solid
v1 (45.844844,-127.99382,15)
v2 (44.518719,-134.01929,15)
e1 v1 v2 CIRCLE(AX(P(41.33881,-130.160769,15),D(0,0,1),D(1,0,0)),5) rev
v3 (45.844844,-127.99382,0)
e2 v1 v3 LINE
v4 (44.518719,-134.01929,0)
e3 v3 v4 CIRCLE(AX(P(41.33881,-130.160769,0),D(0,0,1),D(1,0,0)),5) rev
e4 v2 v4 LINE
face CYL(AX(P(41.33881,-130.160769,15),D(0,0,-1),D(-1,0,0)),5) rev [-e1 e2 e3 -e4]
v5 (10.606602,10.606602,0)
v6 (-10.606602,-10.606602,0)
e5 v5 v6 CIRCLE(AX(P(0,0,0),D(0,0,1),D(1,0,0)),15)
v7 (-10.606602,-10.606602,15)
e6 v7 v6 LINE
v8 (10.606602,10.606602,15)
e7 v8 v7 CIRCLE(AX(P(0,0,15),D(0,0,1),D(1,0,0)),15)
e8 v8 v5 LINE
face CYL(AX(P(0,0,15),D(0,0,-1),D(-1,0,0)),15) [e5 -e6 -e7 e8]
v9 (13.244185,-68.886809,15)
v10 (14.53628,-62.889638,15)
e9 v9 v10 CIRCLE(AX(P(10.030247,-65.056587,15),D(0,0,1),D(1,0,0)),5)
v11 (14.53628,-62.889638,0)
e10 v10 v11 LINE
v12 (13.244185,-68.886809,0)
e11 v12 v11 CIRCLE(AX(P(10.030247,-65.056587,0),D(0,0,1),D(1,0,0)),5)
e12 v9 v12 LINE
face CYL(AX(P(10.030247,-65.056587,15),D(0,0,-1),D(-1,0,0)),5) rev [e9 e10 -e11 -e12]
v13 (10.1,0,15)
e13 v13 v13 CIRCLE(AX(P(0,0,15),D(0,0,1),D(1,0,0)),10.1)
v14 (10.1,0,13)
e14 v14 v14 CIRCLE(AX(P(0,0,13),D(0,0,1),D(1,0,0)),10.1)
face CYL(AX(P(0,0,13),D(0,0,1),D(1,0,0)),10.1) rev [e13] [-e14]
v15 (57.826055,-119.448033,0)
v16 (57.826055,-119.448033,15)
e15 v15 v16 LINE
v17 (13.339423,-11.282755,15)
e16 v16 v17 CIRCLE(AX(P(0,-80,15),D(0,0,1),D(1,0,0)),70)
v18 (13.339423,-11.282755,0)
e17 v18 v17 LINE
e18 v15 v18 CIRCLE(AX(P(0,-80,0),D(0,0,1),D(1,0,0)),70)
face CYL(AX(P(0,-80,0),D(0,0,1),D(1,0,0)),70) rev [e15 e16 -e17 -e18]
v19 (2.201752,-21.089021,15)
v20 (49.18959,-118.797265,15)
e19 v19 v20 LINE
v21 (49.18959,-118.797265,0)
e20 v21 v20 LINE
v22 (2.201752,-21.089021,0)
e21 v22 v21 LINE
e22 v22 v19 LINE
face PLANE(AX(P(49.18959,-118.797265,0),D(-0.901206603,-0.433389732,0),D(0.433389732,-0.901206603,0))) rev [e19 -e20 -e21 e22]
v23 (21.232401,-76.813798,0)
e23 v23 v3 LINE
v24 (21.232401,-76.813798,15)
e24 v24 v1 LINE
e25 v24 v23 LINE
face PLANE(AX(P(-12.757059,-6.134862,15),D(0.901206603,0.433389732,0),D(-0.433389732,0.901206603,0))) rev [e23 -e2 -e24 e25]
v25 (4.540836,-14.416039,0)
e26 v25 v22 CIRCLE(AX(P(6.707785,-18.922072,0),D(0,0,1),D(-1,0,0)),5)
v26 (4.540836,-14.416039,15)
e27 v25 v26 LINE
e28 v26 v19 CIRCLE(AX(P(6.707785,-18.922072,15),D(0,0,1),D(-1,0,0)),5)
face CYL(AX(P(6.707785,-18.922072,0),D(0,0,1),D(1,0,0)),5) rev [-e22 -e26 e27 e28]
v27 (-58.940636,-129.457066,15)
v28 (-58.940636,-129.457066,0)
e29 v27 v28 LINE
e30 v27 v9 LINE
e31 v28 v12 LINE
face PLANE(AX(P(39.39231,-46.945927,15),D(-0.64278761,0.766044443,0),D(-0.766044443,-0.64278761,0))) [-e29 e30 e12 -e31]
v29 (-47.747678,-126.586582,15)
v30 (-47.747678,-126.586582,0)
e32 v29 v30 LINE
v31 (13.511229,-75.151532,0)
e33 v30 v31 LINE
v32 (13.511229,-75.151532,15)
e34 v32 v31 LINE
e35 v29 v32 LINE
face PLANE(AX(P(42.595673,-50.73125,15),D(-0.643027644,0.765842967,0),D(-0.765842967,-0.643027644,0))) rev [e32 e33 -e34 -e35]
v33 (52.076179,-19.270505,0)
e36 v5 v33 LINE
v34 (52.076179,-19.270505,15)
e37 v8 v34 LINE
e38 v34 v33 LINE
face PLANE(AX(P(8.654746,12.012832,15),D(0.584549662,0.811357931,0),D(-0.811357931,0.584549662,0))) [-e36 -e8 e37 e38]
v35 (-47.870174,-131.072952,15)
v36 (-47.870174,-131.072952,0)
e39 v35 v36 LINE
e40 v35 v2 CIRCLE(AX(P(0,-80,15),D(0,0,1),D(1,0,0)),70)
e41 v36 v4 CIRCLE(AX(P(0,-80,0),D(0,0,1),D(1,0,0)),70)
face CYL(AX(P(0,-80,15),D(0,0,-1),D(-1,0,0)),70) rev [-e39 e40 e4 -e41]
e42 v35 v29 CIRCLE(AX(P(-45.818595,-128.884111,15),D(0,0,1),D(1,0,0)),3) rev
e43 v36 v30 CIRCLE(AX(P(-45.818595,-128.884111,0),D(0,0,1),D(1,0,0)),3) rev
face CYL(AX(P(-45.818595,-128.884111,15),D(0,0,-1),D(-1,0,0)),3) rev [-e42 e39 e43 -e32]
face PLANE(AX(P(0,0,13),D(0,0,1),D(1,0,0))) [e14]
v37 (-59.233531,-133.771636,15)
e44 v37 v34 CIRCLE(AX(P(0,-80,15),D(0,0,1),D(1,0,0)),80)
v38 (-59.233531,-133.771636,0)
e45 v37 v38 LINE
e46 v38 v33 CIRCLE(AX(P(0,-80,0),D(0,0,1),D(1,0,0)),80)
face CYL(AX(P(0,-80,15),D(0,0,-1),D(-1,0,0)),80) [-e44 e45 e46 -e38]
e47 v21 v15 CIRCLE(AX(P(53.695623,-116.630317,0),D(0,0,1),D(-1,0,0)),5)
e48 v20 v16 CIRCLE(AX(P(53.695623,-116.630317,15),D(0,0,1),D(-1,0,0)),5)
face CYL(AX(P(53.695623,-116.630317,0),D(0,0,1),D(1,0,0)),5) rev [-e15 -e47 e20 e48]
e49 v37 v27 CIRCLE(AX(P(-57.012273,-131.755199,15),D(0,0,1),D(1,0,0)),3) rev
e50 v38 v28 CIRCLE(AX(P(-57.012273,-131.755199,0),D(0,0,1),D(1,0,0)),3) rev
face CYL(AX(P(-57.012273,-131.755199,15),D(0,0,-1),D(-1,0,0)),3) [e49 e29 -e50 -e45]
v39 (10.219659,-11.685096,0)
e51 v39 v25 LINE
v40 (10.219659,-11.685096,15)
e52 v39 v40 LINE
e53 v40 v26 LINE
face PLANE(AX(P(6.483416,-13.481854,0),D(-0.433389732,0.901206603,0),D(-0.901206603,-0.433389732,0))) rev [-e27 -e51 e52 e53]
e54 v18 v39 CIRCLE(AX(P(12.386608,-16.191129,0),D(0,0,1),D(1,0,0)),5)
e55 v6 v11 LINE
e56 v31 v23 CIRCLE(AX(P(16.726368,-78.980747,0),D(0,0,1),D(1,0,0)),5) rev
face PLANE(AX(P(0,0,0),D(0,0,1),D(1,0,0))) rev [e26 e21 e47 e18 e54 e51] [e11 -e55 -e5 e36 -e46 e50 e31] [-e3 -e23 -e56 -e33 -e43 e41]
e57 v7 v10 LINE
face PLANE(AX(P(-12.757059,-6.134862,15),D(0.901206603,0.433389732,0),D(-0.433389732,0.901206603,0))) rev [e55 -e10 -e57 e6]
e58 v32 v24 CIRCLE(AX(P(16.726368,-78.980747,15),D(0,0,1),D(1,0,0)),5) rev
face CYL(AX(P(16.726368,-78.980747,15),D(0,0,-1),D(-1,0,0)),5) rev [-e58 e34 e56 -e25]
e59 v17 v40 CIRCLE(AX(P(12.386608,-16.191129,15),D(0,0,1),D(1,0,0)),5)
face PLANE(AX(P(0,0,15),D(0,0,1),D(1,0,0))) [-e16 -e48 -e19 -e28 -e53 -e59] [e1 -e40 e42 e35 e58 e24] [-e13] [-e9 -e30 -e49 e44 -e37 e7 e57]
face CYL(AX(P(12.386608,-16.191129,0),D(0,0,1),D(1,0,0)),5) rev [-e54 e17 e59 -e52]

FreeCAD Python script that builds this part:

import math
import FreeCAD as App
import Part
import Sketcher
Q = App.Units.Quantity

doc = App.newDocument("Part")
params = doc.addObject("Spreadsheet::Sheet", "Params")
for row, (alias, value) in enumerate([
    ("sketch1_radius", "3 mm"),
    ("sketch1_radius2", "80 mm"),
    ("sketch1_radius3", "15 mm"),
    ("sketch1_radius4", "5 mm"),
    ("sketch1_radius5", "70 mm"),
    ("pad1_length", "15 mm"),
    ("sketch2_radius", "5 mm"),
    ("sketch2_radius2", "70 mm"),
    ("pocket1_length", "15 mm"),
    ("sketch3_diameter", "20.2 mm"),
    ("pocket2_length", "2 mm"),
], start=1):
    params.set(f"A{row}", alias)
    params.set(f"B{row}", "=" + value)
    params.setAlias(f"B{row}", alias)

body = doc.addObject("PartDesign::Body", "Body")

# Sketch on XY plane
sketch1 = doc.addObject("Sketcher::SketchObject", "Sketch")
body.addObject(sketch1)
sketch1.AttachmentSupport = (doc.XY_Plane, [""])
sketch1.MapMode = "FlatFace"
sketch1.addGeometry([
    Part.LineSegment(App.Vector(-53.6, -125, 0), App.Vector(-58.9, -129.5, 0)),  # 0
    Part.ArcOfCircle(Part.Circle(App.Vector(-57, -131.8, 0), App.Vector(0, 0, 1), 3), math.radians(130), math.radians(222)),  # 1
    Part.ArcOfCircle(Part.Circle(App.Vector(0, -80, 0), App.Vector(0, 0, 1), 80), math.radians(-138), math.radians(49)),  # 2
    Part.LineSegment(App.Vector(52.1, -19.3, 0), App.Vector(10.6, 10.6, 0)),  # 3
    Part.ArcOfCircle(Part.Circle(App.Vector(0, 0, 0), App.Vector(0, 0, 1), 15), math.radians(45), math.radians(225)),  # 4
    Part.LineSegment(App.Vector(-10.6, -10.6, 0), App.Vector(14.5, -62.9, 0)),  # 5
    Part.ArcOfCircle(Part.Circle(App.Vector(10, -65.1, 0), App.Vector(0, 0, 1), 5), math.radians(-50), math.radians(26)),  # 6
    Part.LineSegment(App.Vector(13.2, -68.9, 0), App.Vector(-53.6, -125, 0)),  # 7
    Part.ArcOfCircle(Part.Circle(App.Vector(16.7, -79, 0), App.Vector(0, 0, 1), 5), math.radians(26), math.radians(130)),  # 8
    Part.LineSegment(App.Vector(21.2, -76.8, 0), App.Vector(45.8, -128, 0)),  # 9
    Part.ArcOfCircle(Part.Circle(App.Vector(41.3, -130.2, 0), App.Vector(0, 0, 1), 5), math.radians(-51), math.radians(26)),  # 10
    Part.ArcOfCircle(Part.Circle(App.Vector(0, -80, 0), App.Vector(0, 0, 1), 70), math.radians(-133), math.radians(-51)),  # 11
    Part.ArcOfCircle(Part.Circle(App.Vector(-45.8, -128.9, 0), App.Vector(0, 0, 1), 3), math.radians(130), math.radians(227)),  # 12
    Part.LineSegment(App.Vector(-47.7, -126.6, 0), App.Vector(13.5, -75.2, 0)),  # 13
], False)
sketch1.addConstraint([
    Sketcher.Constraint("Tangent", 0, 2, 1, 1),
    Sketcher.Constraint("Tangent", 1, 2, 2, 1),
    Sketcher.Constraint("Coincident", 2, 2, 3, 1),
    Sketcher.Constraint("Coincident", 3, 2, 4, 1),
    Sketcher.Constraint("Coincident", 4, 2, 5, 1),
    Sketcher.Constraint("Tangent", 5, 2, 6, 2),
    Sketcher.Constraint("Tangent", 6, 1, 7, 1),
    Sketcher.Constraint("Coincident", 7, 2, 0, 1),
    Sketcher.Constraint("Tangent", 8, 1, 9, 1),
    Sketcher.Constraint("Tangent", 9, 2, 10, 2),
    Sketcher.Constraint("Tangent", 10, 1, 11, 2),
    Sketcher.Constraint("Tangent", 11, 1, 12, 2),
    Sketcher.Constraint("Tangent", 12, 1, 13, 1),
    Sketcher.Constraint("Tangent", 13, 2, 8, 2),
    Sketcher.Constraint("Coincident", 4, 3, -1, 1),
    Sketcher.Constraint("Coincident", 11, 3, 2, 3),
    Sketcher.Constraint("Equal", 6, 8),
    Sketcher.Constraint("Equal", 8, 10),
    Sketcher.Constraint("Equal", 1, 12),
    Sketcher.Constraint("PointOnObject", 2, 3, -2),
    Sketcher.Constraint("Parallel", 0, 7),
    Sketcher.Constraint("Parallel", 5, 9),
    Sketcher.Constraint("Radius", 1, 3.0),
    Sketcher.Constraint("Radius", 2, 80.0),
    Sketcher.Constraint("Radius", 4, 15.0),
    Sketcher.Constraint("Radius", 6, 5.0),
    Sketcher.Constraint("Radius", 11, 70.0),
    Sketcher.Constraint("Angle", 0, Q("-140 deg")),
    Sketcher.Constraint("DistanceY", 2, 3, -1, 1, 80.0),
    Sketcher.Constraint("DistanceY", 1, 3, -1, 1, 131.755199),
    Sketcher.Constraint("DistanceX", -1, 1, 3, 2, 10.606602),
    Sketcher.Constraint("DistanceX", 4, 2, -1, 1, 10.606602),
    Sketcher.Constraint("DistanceX", -1, 1, 8, 1, 21.232401),
    Sketcher.Constraint("DistanceY", 8, 1, -1, 1, 76.813798),
    Sketcher.Constraint("DistanceX", 5, 2, 2, 2, 37.539899),
    Sketcher.Constraint("DistanceX", 1, 3, 11, 1, 9.142099),
    Sketcher.Constraint("DistanceX", -1, 1, 10, 3, 41.33881),
    Sketcher.Constraint("DistanceX", 7, 2, -1, 1, 53.623111),
])
sketch1.setExpression("Constraints[22]", "Params.sketch1_radius")
sketch1.setExpression("Constraints[23]", "Params.sketch1_radius2")
sketch1.setExpression("Constraints[24]", "Params.sketch1_radius3")
sketch1.setExpression("Constraints[25]", "Params.sketch1_radius4")
sketch1.setExpression("Constraints[26]", "Params.sketch1_radius5")
pad1 = doc.addObject("PartDesign::Pad", "Pad")
body.addObject(pad1)
pad1.Profile = sketch1
pad1.setExpression("Length", "Params.pad1_length")

# Sketch on XY plane
sketch2 = doc.addObject("Sketcher::SketchObject", "Sketch001")
body.addObject(sketch2)
sketch2.AttachmentSupport = (doc.XY_Plane, [""])
sketch2.MapMode = "FlatFace"
sketch2.addGeometry([
    Part.LineSegment(App.Vector(2.2, -21.1, 0), App.Vector(49.2, -118.8, 0)),  # 0
    Part.ArcOfCircle(Part.Circle(App.Vector(53.7, -116.6, 0), App.Vector(0, 0, 1), 5), math.radians(-154), math.radians(-34)),  # 1
    Part.ArcOfCircle(Part.Circle(App.Vector(0, -80, 0), App.Vector(0, 0, 1), 70), math.radians(-34), math.radians(79)),  # 2
    Part.ArcOfCircle(Part.Circle(App.Vector(12.4, -16.2, 0), App.Vector(0, 0, 1), 5), math.radians(79), math.radians(116)),  # 3
    Part.LineSegment(App.Vector(10.2, -11.7, 0), App.Vector(6.5, -13.5, 0)),  # 4
    Part.LineSegment(App.Vector(6.5, -13.5, 0), App.Vector(4.5, -14.4, 0)),  # 5
    Part.ArcOfCircle(Part.Circle(App.Vector(6.7, -18.9, 0), App.Vector(0, 0, 1), 5), math.radians(116), math.radians(206)),  # 6
], False)
sketch2.addConstraint([
    Sketcher.Constraint("Tangent", 0, 2, 1, 1),
    Sketcher.Constraint("Tangent", 1, 2, 2, 1),
    Sketcher.Constraint("Tangent", 2, 2, 3, 1),
    Sketcher.Constraint("Tangent", 3, 2, 4, 1),
    Sketcher.Constraint("Coincident", 4, 2, 5, 1),
    Sketcher.Constraint("Tangent", 5, 2, 6, 1),
    Sketcher.Constraint("Tangent", 6, 2, 0, 1),
    Sketcher.Constraint("Equal", 1, 3),
    Sketcher.Constraint("Equal", 3, 6),
    Sketcher.Constraint("PointOnObject", 2, 3, -2),
    Sketcher.Constraint("Perpendicular", 0, 4),
    Sketcher.Constraint("Parallel", 4, 5),
    Sketcher.Constraint("Radius", 1, 5.0),
    Sketcher.Constraint("Radius", 2, 70.0),
    Sketcher.Constraint("DistanceY", 2, 3, -1, 1, 80.0),
    Sketcher.Constraint("DistanceX", 2, 2, 1, 3, 40.356199),
    Sketcher.Constraint("DistanceY", 4, 2, 2, 2, 2.199099),
    Sketcher.Constraint("Distance", 0, 108.419362),
    Sketcher.Constraint("Distance", 5, 2.155532),
])
sketch2.setExpression("Constraints[12]", "Params.sketch2_radius")
sketch2.setExpression("Constraints[13]", "Params.sketch2_radius2")
pocket1 = doc.addObject("PartDesign::Pocket", "Pocket")
body.addObject(pocket1)
pocket1.Profile = sketch2
pocket1.setExpression("Length", "Params.pocket1_length")
pocket1.Reversed = True

# Sketch on XY plane
sketch3 = doc.addObject("Sketcher::SketchObject", "Sketch002")
body.addObject(sketch3)
sketch3.AttachmentSupport = (doc.XY_Plane, [""])
sketch3.MapMode = "FlatFace"
sketch3.AttachmentOffset = App.Placement(App.Vector(0, 0, 15), App.Rotation())
sketch3.addGeometry(Part.Circle(App.Vector(0, 0, 0), App.Vector(0, 0, 1), 10), False)
sketch3.addConstraint([
    Sketcher.Constraint("Coincident", 0, 3, -1, 1),
    Sketcher.Constraint("Diameter", 0, 20.2),
])
sketch3.setExpression("Constraints[1]", "Params.sketch3_diameter")
pocket2 = doc.addObject("PartDesign::Pocket", "Pocket001")
body.addObject(pocket2)
pocket2.Profile = sketch3
pocket2.setExpression("Length", "Params.pocket2_length")

doc.recompute()
